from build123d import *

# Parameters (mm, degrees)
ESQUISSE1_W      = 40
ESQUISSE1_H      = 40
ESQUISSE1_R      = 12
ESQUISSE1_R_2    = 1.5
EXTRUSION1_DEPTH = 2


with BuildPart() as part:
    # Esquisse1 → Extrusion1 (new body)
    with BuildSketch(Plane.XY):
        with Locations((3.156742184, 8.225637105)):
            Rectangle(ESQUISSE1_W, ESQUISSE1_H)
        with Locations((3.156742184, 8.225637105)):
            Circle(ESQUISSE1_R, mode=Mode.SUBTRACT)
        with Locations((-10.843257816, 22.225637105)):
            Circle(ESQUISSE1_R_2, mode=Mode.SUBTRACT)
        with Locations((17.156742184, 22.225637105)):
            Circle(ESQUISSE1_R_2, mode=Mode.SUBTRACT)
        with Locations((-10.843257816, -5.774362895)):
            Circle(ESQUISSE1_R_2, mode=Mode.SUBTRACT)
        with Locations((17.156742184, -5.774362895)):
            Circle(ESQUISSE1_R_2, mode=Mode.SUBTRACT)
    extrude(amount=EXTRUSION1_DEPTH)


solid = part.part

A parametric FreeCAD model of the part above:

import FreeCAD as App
import Part
import Sketcher


def add_polygon(sketch, points):
    """Adds a closed chain of lines whose ends are joined by coincident constraints."""
    first, n = sketch.GeometryCount, len(points)
    for a, b in zip(points, points[1:] + points[:1]):
        sketch.addGeometry(Part.LineSegment(App.Vector(*a, 0), App.Vector(*b, 0)), False)
    for i in range(n):
        sketch.addConstraint(Sketcher.Constraint("Coincident", first + i, 2, first + (i + 1) % n, 1))

doc = App.newDocument("Part")
body = doc.addObject("PartDesign::Body", "Body")

# Sketch on XY plane
sketch1 = doc.addObject("Sketcher::SketchObject", "Sketch")
body.addObject(sketch1)
sketch1.AttachmentSupport = (doc.XY_Plane, [""])
sketch1.MapMode = "FlatFace"
add_polygon(sketch1, [(-16.8, 28.2), (-16.8, -11.8), (23.2, -11.8), (23.2, 28.2)])  # lines 0-3
sketch1.addGeometry(Part.Circle(App.Vector(-10.8, -5.8, 0), App.Vector(0, 0, 1), 1.5), False)  # 4
sketch1.addGeometry(Part.Circle(App.Vector(17.2, -5.8, 0), App.Vector(0, 0, 1), 1.5), False)  # 5
sketch1.addGeometry(Part.Circle(App.Vector(-10.8, 22.2, 0), App.Vector(0, 0, 1), 1.5), False)  # 6
sketch1.addGeometry(Part.Circle(App.Vector(3.2, 8.2, 0), App.Vector(0, 0, 1), 12), False)  # 7
sketch1.addGeometry(Part.Circle(App.Vector(17.2, 22.2, 0), App.Vector(0, 0, 1), 1.5), False)  # 8
sketch1.addConstraint([
    Sketcher.Constraint("Vertical", 0),
    Sketcher.Constraint("Horizontal", 1),
    Sketcher.Constraint("Vertical", 2),
    Sketcher.Constraint("Horizontal", 3),
    Sketcher.Constraint("Equal", 4, 5),
    Sketcher.Constraint("Equal", 5, 6),
    Sketcher.Constraint("Equal", 6, 8),
    Sketcher.Constraint("Horizontal", 4, 3, 5, 3),
    Sketcher.Constraint("Horizontal", 6, 3, 8, 3),
    Sketcher.Constraint("Vertical", 4, 3, 6, 3),
    Sketcher.Constraint("Vertical", 5, 3, 8, 3),
    Sketcher.Constraint("Equal", 3, 0),
    Sketcher.Constraint("Diameter", 4, 3.0),
    Sketcher.Constraint("Diameter", 7, 24.0),
    Sketcher.Constraint("DistanceX", 1, 1, 1, 2, 40.0),
    Sketcher.Constraint("DistanceX", 4, 3, 5, 3, 28.0),
    Sketcher.Constraint("DistanceY", 4, 3, 6, 3, 28.0),
    Sketcher.Constraint("DistanceX", 4, 3, 7, 3, 14.0),
    Sketcher.Constraint("DistanceY", 4, 3, 7, 3, 14.0),
    Sketcher.Constraint("DistanceX", 0, 2, 4, 3, 6.0),
    Sketcher.Constraint("DistanceY", 0, 2, 4, 3, 6.0),
    Sketcher.Constraint("DistanceX", 4, 3, -1, 1, 10.843258),
    Sketcher.Constraint("DistanceY", 4, 3, -1, 1, 5.774363),
])
pad1 = doc.addObject("PartDesign::Pad", "Pad")
body.addObject(pad1)
pad1.Profile = sketch1
pad1.Length = 2

doc.recompute()
